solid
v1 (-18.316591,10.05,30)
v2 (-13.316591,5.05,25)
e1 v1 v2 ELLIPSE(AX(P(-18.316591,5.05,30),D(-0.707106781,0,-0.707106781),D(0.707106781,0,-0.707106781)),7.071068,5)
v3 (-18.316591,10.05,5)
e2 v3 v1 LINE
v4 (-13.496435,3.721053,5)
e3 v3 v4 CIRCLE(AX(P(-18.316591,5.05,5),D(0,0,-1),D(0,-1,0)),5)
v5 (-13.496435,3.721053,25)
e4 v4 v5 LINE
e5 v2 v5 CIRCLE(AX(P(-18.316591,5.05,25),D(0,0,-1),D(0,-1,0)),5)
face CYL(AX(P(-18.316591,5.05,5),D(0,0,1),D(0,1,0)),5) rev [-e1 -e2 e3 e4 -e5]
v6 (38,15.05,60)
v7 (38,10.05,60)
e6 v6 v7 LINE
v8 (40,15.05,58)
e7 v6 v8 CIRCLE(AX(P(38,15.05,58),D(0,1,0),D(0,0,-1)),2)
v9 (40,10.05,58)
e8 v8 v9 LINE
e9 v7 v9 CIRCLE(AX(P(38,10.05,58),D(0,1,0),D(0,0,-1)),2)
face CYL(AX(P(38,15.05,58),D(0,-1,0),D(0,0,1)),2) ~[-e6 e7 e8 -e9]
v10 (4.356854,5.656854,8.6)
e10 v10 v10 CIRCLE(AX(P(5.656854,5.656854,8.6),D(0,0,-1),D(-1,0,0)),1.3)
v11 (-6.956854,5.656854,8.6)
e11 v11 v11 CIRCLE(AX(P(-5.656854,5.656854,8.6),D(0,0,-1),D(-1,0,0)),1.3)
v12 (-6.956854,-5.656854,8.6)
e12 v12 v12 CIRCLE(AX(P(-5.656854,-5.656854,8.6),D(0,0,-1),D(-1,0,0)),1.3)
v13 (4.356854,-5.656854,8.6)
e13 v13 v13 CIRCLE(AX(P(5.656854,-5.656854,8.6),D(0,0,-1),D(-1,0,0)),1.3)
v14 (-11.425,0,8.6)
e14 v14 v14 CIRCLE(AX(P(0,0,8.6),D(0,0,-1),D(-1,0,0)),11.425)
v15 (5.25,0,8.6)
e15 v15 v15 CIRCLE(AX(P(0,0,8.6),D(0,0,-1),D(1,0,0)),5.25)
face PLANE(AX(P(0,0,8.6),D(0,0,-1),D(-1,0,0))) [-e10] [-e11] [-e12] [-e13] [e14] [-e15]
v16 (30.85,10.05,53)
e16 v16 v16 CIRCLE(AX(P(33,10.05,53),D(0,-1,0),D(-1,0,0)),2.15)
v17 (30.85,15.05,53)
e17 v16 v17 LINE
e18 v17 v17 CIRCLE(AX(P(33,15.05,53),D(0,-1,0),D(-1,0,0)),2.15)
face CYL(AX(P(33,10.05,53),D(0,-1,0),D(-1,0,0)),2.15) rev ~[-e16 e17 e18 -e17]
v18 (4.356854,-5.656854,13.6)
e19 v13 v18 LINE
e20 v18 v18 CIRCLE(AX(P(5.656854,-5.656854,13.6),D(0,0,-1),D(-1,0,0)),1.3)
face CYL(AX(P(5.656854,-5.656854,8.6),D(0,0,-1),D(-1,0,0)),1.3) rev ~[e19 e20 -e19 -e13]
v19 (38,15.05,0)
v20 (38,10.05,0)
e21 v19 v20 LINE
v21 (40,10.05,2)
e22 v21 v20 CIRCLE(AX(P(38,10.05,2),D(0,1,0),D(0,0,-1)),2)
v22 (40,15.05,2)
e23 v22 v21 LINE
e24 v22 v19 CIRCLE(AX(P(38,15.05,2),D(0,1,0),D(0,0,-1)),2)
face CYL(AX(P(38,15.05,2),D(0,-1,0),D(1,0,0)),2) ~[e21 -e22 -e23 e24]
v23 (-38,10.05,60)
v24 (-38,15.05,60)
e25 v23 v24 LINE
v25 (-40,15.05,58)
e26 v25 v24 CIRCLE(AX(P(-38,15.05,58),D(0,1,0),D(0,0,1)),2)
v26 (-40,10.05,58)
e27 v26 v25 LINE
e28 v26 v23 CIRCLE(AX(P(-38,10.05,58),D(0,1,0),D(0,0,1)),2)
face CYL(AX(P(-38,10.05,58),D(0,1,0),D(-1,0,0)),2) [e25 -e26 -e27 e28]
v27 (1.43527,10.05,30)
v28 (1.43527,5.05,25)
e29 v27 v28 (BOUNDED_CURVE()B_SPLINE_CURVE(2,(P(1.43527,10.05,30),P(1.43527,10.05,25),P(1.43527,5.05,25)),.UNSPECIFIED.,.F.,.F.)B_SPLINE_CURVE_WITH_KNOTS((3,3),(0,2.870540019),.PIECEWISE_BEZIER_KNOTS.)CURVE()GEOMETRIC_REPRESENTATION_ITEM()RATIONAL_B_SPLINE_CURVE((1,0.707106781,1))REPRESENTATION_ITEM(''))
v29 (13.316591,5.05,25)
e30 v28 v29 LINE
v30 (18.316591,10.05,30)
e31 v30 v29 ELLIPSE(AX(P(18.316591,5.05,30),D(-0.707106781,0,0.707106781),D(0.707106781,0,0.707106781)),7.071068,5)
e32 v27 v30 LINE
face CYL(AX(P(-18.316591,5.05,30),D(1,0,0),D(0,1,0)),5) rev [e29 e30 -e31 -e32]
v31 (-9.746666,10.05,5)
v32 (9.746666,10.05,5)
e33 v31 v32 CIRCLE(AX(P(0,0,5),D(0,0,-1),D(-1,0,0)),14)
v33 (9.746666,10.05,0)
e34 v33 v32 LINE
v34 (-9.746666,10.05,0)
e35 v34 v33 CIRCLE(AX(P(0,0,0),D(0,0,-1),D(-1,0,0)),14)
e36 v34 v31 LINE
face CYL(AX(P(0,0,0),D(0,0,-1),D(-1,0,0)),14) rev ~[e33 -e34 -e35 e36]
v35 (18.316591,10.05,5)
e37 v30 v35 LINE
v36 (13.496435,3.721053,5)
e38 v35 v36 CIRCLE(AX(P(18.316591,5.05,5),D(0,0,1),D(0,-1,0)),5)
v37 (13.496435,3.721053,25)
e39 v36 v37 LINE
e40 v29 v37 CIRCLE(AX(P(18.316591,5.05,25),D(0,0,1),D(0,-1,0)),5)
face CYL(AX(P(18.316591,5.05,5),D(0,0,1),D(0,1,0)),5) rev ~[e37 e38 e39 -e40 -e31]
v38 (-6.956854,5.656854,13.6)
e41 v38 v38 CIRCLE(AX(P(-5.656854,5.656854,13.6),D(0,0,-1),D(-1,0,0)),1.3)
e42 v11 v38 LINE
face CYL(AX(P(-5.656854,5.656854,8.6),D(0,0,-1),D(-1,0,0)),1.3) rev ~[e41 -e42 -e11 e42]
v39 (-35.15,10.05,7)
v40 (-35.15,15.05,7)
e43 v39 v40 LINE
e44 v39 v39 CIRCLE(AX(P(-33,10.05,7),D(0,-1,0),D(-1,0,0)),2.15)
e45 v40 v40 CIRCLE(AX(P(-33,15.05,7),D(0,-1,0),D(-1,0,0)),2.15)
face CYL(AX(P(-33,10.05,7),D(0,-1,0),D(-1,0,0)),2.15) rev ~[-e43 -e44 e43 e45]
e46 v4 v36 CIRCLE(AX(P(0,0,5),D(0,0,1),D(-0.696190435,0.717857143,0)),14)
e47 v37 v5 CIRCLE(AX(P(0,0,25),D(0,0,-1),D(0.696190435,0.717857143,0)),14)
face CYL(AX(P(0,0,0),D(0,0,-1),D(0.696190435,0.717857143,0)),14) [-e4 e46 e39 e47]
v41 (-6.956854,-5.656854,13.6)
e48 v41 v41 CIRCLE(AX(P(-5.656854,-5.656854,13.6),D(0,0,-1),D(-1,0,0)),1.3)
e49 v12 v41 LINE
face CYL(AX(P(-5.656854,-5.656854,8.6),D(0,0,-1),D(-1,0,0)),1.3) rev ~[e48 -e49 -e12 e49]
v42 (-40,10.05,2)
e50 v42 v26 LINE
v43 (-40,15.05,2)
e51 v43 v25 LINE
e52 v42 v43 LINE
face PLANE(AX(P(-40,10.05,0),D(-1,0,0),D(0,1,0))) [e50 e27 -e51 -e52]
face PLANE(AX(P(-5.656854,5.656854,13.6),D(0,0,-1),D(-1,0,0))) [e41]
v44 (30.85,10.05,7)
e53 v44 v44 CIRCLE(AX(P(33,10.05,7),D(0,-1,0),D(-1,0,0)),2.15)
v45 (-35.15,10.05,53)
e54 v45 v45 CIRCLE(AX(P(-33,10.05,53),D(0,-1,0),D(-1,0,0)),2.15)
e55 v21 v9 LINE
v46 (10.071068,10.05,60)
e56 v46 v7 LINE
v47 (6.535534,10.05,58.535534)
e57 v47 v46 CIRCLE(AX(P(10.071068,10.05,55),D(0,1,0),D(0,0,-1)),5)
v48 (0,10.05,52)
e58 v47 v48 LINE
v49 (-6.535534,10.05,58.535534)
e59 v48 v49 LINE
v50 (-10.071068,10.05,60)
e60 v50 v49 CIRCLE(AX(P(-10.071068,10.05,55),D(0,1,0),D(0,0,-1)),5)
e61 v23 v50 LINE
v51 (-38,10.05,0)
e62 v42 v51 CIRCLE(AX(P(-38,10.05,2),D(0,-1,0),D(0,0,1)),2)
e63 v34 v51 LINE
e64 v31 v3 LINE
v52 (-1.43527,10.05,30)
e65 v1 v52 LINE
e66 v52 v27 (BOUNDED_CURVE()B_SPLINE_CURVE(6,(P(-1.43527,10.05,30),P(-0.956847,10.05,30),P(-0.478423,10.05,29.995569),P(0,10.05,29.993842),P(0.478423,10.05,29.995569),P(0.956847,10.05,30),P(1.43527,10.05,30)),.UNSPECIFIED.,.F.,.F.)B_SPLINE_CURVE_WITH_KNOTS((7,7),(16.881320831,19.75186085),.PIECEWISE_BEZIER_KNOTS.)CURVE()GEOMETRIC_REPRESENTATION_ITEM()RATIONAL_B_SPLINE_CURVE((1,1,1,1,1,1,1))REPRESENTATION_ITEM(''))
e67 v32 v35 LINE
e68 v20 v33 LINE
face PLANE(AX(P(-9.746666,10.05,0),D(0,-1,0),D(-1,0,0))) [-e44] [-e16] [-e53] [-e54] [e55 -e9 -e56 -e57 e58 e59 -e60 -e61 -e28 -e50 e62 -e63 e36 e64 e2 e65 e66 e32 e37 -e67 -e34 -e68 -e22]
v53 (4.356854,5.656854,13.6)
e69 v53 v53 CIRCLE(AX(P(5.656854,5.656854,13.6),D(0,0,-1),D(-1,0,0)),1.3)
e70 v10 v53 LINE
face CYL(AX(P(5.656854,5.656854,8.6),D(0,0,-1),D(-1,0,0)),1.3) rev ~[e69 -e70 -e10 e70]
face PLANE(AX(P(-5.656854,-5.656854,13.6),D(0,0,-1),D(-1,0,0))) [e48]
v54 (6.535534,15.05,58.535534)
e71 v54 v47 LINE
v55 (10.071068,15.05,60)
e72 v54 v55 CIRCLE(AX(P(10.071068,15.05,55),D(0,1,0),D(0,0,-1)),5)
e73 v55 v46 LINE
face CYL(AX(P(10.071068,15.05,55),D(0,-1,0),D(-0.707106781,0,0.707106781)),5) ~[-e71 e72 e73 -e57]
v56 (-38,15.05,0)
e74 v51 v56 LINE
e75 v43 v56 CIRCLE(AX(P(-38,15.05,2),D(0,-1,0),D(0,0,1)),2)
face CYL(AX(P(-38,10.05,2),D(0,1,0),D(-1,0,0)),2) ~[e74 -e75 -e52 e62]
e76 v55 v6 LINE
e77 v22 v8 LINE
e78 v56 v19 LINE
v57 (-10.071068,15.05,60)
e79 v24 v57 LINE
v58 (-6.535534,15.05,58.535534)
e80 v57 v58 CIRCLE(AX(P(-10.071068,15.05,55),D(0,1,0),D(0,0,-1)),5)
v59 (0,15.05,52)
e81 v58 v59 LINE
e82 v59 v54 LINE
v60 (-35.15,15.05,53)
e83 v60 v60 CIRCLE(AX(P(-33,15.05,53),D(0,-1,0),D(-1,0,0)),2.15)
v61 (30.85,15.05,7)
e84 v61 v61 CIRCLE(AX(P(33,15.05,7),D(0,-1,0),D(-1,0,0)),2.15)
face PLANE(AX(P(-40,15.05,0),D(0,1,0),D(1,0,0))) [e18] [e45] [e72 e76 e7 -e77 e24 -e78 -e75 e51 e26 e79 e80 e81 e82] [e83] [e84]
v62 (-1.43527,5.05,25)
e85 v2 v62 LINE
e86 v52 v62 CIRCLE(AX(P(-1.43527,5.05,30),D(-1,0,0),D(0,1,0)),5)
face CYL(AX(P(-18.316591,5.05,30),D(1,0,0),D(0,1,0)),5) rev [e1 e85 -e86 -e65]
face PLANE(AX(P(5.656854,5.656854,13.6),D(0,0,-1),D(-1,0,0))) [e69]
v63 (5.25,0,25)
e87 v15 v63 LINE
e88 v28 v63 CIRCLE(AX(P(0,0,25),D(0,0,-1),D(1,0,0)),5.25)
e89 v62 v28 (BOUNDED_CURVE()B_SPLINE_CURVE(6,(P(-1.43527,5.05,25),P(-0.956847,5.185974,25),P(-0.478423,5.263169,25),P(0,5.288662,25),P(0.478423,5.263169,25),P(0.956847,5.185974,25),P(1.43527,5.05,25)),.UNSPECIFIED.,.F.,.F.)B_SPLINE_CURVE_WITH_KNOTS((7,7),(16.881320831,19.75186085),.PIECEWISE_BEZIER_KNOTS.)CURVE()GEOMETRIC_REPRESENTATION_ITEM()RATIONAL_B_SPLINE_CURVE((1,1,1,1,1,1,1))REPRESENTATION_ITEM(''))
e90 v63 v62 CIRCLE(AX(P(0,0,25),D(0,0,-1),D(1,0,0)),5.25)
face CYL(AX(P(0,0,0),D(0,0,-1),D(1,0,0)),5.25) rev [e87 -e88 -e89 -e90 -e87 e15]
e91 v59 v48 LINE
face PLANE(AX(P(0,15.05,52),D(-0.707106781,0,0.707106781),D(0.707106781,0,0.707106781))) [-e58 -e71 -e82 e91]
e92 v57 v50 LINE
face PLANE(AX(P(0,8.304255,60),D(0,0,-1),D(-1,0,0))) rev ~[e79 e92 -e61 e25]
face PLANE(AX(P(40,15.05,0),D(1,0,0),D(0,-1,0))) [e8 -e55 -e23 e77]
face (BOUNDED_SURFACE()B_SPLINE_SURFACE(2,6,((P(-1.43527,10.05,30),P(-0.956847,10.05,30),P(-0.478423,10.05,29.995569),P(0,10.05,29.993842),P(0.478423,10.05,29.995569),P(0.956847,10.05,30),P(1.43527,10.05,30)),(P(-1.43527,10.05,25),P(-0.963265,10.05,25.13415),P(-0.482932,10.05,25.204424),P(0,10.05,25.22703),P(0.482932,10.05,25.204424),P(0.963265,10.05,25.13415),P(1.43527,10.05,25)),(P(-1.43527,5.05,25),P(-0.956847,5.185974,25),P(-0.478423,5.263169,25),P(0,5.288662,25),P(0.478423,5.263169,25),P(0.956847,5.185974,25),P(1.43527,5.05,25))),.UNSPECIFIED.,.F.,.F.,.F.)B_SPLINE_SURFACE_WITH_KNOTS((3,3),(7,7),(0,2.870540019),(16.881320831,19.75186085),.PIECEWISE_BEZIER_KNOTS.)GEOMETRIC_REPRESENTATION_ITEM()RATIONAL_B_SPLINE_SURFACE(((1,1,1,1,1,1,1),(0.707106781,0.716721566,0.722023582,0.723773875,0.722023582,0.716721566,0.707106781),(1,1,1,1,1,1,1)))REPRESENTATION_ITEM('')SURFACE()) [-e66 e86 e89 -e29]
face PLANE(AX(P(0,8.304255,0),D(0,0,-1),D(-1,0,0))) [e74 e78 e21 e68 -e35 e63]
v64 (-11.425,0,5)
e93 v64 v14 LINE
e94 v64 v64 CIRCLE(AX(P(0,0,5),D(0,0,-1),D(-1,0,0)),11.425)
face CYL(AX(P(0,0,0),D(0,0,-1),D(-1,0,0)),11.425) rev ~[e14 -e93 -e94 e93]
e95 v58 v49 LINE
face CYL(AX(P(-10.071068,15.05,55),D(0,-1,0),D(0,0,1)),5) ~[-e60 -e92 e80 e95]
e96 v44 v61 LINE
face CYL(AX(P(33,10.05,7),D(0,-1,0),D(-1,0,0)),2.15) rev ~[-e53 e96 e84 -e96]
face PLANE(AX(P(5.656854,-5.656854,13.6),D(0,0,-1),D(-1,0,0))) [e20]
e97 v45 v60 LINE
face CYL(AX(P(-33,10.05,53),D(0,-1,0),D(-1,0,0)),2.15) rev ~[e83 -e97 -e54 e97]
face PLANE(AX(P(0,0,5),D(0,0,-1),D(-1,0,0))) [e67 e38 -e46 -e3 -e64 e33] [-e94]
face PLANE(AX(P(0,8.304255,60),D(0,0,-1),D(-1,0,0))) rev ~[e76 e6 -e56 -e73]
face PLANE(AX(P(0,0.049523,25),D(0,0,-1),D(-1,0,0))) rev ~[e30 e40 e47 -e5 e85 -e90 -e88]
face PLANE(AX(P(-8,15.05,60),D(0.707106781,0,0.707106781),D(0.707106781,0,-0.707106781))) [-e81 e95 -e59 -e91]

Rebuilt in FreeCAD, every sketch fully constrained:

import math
import FreeCAD as App
import Part
import Sketcher

V = App.Vector


def edges_at(feature, points):
    """Names of the edges that pass closest to the given points."""
    edges = feature.Shape.Edges
    near = lambda p: min(range(len(edges)), key=lambda i: edges[i].distToShape(Part.Vertex(*p))[0])
    return sorted({f"Edge{near(p) + 1}" for p in points})


def add_polygon(sketch, points):
    """Adds a closed chain of lines whose ends are joined by coincident constraints."""
    first, n = sketch.GeometryCount, len(points)
    for a, b in zip(points, points[1:] + points[:1]):
        sketch.addGeometry(Part.LineSegment(App.Vector(*a, 0), App.Vector(*b, 0)), False)
    for i in range(n):
        sketch.addConstraint(Sketcher.Constraint("Coincident", first + i, 2, first + (i + 1) % n, 1))

doc = App.newDocument("Part")
body = doc.addObject("PartDesign::Body", "Body")

sketch1 = body.newObject("Sketcher::SketchObject", "Sketch")
sketch1.AttachmentSupport = (doc.getObject("XY_Plane"), [""])
sketch1.MapMode = "FlatFace"
sketch1.addGeometry([
    Part.LineSegment(V(40, 15.05, 0), V(-40, 15.05, 0)),
    Part.LineSegment(V(-40, 15.05, 0), V(-40, 10.05, 0)),
    Part.LineSegment(V(-40, 10.05, 0), V(-9.746666, 10.05, 0)),
    Part.ArcOfCircle(Part.Circle(V(0, 0, 0), V(0, 0, 1), 14), math.radians(134.122156), math.radians(405.877844)),
    Part.LineSegment(V(9.746666, 10.05, 0), V(40, 10.05, 0)),
    Part.LineSegment(V(40, 10.05, 0), V(40, 15.05, 0)),
    Part.Circle(V(0, 0, 0), V(0, 0, 1), 5.25),
], False)
sketch1.addConstraint([
    Sketcher.Constraint("Coincident", 0, 2, 1, 1),
    Sketcher.Constraint("Coincident", 1, 2, 2, 1),
    Sketcher.Constraint("Coincident", 2, 2, 3, 1),
    Sketcher.Constraint("Coincident", 3, 2, 4, 1),
    Sketcher.Constraint("Coincident", 4, 2, 5, 1),
    Sketcher.Constraint("Coincident", 5, 2, 0, 1),
    Sketcher.Constraint("Horizontal", 0),
    Sketcher.Constraint("Vertical", 1),
    Sketcher.Constraint("Horizontal", 2),
    Sketcher.Constraint("Horizontal", 4),
    Sketcher.Constraint("Vertical", 5),
    Sketcher.Constraint("Coincident", 3, 3, -1, 1),
    Sketcher.Constraint("Coincident", 6, 3, -1, 1),
    Sketcher.Constraint("Symmetric", 1, 2, 4, 2, -2),
    Sketcher.Constraint("Radius", 3, 14.0),
    Sketcher.Constraint("Diameter", 6, 10.5),
    Sketcher.Constraint("DistanceX", 0, 2, 0, 1, 80.0),
    Sketcher.Constraint("DistanceY", 1, 2, 1, 1, 5.0),
    Sketcher.Constraint("DistanceY", -1, 1, 0, 2, 15.05),
])
pad1 = body.newObject("PartDesign::Pad", "Pad")
pad1.Profile = sketch1
pad1.Length = 60

sketch2 = body.newObject("Sketcher::SketchObject", "Sketch001")
sketch2.AttachmentSupport = (doc.getObject("XY_Plane"), [""])
sketch2.MapMode = "FlatFace"
sketch2.addGeometry(Part.Circle(V(0, 0, 0), V(0, 0, 1), 11.425), False)
sketch2.addConstraint([
    Sketcher.Constraint("Coincident", 0, 3, -1, 1),
    Sketcher.Constraint("Diameter", 0, 22.85),
])
pocket1 = body.newObject("PartDesign::Pocket", "Pocket")
pocket1.Profile = sketch2
pocket1.Length = 8.6
pocket1.Reversed = True

sketch3 = body.newObject("Sketcher::SketchObject", "Sketch002")
sketch3.AttachmentSupport = (doc.getObject("XY_Plane"), [""])
sketch3.MapMode = "FlatFace"
sketch3.addGeometry(Part.Circle(V(0, 0, 0), V(0, 0, 1), 14), False)
sketch3.addConstraint([
    Sketcher.Constraint("Coincident", 0, 3, -1, 1),
    Sketcher.Constraint("Diameter", 0, 28.0),
])
pocket2 = body.newObject("PartDesign::Pocket", "Pocket001")
pocket2.Profile = sketch3
pocket2.Length = 5
pocket2.Reversed = True

sketch4 = body.newObject("Sketcher::SketchObject", "Sketch003")
sketch4.AttachmentSupport = (doc.getObject("XY_Plane"), [""])
sketch4.MapMode = "FlatFace"
sketch4.AttachmentOffset = App.Placement(V(0, 0, 8.6), App.Rotation())
sketch4.addGeometry([
    Part.Circle(V(-5.656854, 5.656854, 0), V(0, 0, 1), 1.3),
    Part.Circle(V(-5.656854, -5.656854, 0), V(0, 0, 1), 1.3),
    Part.Circle(V(5.656854, -5.656854, 0), V(0, 0, 1), 1.3),
    Part.Circle(V(5.656854, 5.656854, 0), V(0, 0, 1), 1.3),
], False)
sketch4.addConstraint([
    Sketcher.Constraint("Equal", 0, 1),
    Sketcher.Constraint("Equal", 1, 2),
    Sketcher.Constraint("Equal", 2, 3),
    Sketcher.Constraint("Symmetric", 0, 3, 2, 3, -1, 1),
    Sketcher.Constraint("Symmetric", 1, 3, 3, 3, -1, 1),
    Sketcher.Constraint("Symmetric", 1, 3, 2, 3, -2),
    Sketcher.Constraint("Diameter", 0, 2.6),
    Sketcher.Constraint("DistanceY", 1, 3, 0, 3, 11.313708),
    Sketcher.Constraint("DistanceX", 1, 3, 2, 3, 11.313708),
])
pocket3 = body.newObject("PartDesign::Pocket", "Pocket002")
pocket3.Profile = sketch4
pocket3.Length = 5
pocket3.Reversed = True

sketch5 = body.newObject("Sketcher::SketchObject", "Sketch004")
sketch5.AttachmentSupport = (doc.getObject("XZ_Plane"), [""])
sketch5.MapMode = "FlatFace"
sketch5.AttachmentOffset = App.Placement(V(0, 0, -10.05), App.Rotation())
sketch5.addGeometry([
    Part.Circle(V(-33, 53, 0), V(0, 0, 1), 2.15),
    Part.Circle(V(-33, 7, 0), V(0, 0, 1), 2.15),
    Part.Circle(V(33, 53, 0), V(0, 0, 1), 2.15),
    Part.Circle(V(33, 7, 0), V(0, 0, 1), 2.15),
], False)
sketch5.addConstraint([
    Sketcher.Constraint("Equal", 0, 1),
    Sketcher.Constraint("Equal", 1, 2),
    Sketcher.Constraint("Equal", 2, 3),
    Sketcher.Constraint("Symmetric", 0, 3, 2, 3, -2),
    Sketcher.Constraint("Symmetric", 1, 3, 3, 3, -2),
    Sketcher.Constraint("Vertical", 0, 3, 1, 3),
    Sketcher.Constraint("Diameter", 0, 4.3),
    Sketcher.Constraint("DistanceX", 0, 3, -1, 1, 33.0),
    Sketcher.Constraint("DistanceY", -1, 1, 0, 3, 53.0),
    Sketcher.Constraint("DistanceY", -1, 1, 1, 3, 7.0),
])
pocket4 = body.newObject("PartDesign::Pocket", "Pocket003")
pocket4.Profile = sketch5
pocket4.Type = "ThroughAll"

sketch6 = body.newObject("Sketcher::SketchObject", "Sketch005")
sketch6.AttachmentSupport = (doc.getObject("XY_Plane"), [""])
sketch6.MapMode = "FlatFace"
sketch6.AttachmentOffset = App.Placement(V(0, 0, 60), App.Rotation())
sketch6.addGeometry([
    Part.LineSegment(V(9.746666, 10.05, 0), V(-9.746666, 10.05, 0)),
    Part.ArcOfCircle(Part.Circle(V(0, 0, 0), V(0, 0, 1), 14), math.radians(134.122156), math.radians(405.877844)),
], False)
sketch6.addConstraint([
    Sketcher.Constraint("Coincident", 0, 1, 1, 2),
    Sketcher.Constraint("Coincident", 1, 1, 0, 2),
    Sketcher.Constraint("Horizontal", 0),
    Sketcher.Constraint("Coincident", 1, 3, -1, 1),
    Sketcher.Constraint("Radius", 1, 14.0),
    Sketcher.Constraint("DistanceY", -1, 1, 0, 1, 10.05),
])
pocket5 = body.newObject("PartDesign::Pocket", "Pocket004")
pocket5.Profile = sketch6
pocket5.Length = 35
doc.recompute()

fillet = body.newObject("PartDesign::Fillet", "Fillet")
fillet.Base = (pocket5, edges_at(pocket5, [(9.747, 10.05, 15), (-9.747, 10.05, 15)]))
fillet.Radius = 5
doc.recompute()

fillet2 = body.newObject("PartDesign::Fillet", "Fillet001")
fillet2.Base = (fillet, edges_at(fillet, [
    (40, 12.55, 60),
    (-40, 12.55, 60),
    (40, 12.55, 0),
    (-40, 12.55, 0),
]))
fillet2.Radius = 2
doc.recompute()

fillet3 = body.newObject("PartDesign::Fillet", "Fillet002")
fillet3.Base = (fillet2, edges_at(fillet2, [(0, 10.05, 25)]))
fillet3.Radius = 5

sketch7 = body.newObject("Sketcher::SketchObject", "Sketch006")
sketch7.AttachmentSupport = (doc.getObject("XZ_Plane"), [""])
sketch7.MapMode = "FlatFace"
sketch7.AttachmentOffset = App.Placement(V(0, 0, -15.05), App.Rotation())
add_polygon(sketch7, [(8, 60), (0, 52), (-8, 60)])
sketch7.addConstraint([
    Sketcher.Constraint("Horizontal", 2),
    Sketcher.Constraint("PointOnObject", 0, 2, -2),
    Sketcher.Constraint("Perpendicular", 0, 1),
    Sketcher.Constraint("Equal", 0, 1),
    Sketcher.Constraint("DistanceX", 2, 1, 2, 2, 16.0),
    Sketcher.Constraint("DistanceY", -1, 1, 0, 2, 52.0),
])
pocket6 = body.newObject("PartDesign::Pocket", "Pocket005")
pocket6.Profile = sketch7
pocket6.Type = "ThroughAll"
pocket6.Reversed = True
doc.recompute()

fillet4 = body.newObject("PartDesign::Fillet", "Fillet003")
fillet4.Base = (pocket6, edges_at(pocket6, [(-8, 12.55, 60), (8, 12.55, 60)]))
fillet4.Radius = 5

doc.recompute()
